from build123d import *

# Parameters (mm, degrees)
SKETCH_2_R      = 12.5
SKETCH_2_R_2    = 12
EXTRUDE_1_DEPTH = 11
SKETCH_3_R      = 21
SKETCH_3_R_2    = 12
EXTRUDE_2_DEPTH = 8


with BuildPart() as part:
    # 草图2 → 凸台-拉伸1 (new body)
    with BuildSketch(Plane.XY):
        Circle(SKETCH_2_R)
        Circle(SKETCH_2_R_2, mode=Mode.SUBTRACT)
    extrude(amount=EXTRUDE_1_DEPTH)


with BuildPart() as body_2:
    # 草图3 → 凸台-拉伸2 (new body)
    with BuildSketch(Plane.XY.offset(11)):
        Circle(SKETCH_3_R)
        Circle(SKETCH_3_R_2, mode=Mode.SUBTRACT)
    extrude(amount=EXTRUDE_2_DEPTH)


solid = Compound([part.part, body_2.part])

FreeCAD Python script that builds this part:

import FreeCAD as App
import Part
import Sketcher
Q = App.Units.Quantity

doc = App.newDocument("Part")
body = doc.addObject("PartDesign::Body", "Body")

sketch1 = body.newObject("Sketcher::SketchObject", "Sketch")
sketch1.AttachmentSupport = (doc.getObject("XY_Plane"), [""])
sketch1.MapMode = "FlatFace"
sketch1.addGeometry([
    Part.Circle(App.Vector(0, 0, 0), App.Vector(0, 0, 1), 12.5),
    Part.Circle(App.Vector(0, 0, 0), App.Vector(0, 0, 1), 12),
], False)
sketch1.addConstraint([
    Sketcher.Constraint("Coincident", 0, 3, -1, 1),
    Sketcher.Constraint("Coincident", 1, 3, -1, 1),
    Sketcher.Constraint("Diameter", 0, Q("25 mm")),
    Sketcher.Constraint("Diameter", 1, Q("24 mm")),
])
pad1 = body.newObject("PartDesign::Pad", "Pad")
pad1.Profile = sketch1
pad1.Length = 11
body2 = doc.addObject("PartDesign::Body", "Body001")

sketch2 = body2.newObject("Sketcher::SketchObject", "Sketch001")
sketch2.AttachmentSupport = (doc.getObject("XY_Plane001"), [""])
sketch2.MapMode = "FlatFace"
sketch2.AttachmentOffset = App.Placement(App.Vector(0, 0, 11), App.Rotation())
sketch2.addGeometry([
    Part.Circle(App.Vector(0, 0, 0), App.Vector(0, 0, 1), 21),
    Part.Circle(App.Vector(0, 0, 0), App.Vector(0, 0, 1), 12),
], False)
sketch2.addConstraint([
    Sketcher.Constraint("Coincident", 0, 3, -1, 1),
    Sketcher.Constraint("Coincident", 1, 3, -1, 1),
    Sketcher.Constraint("Diameter", 0, Q("42 mm")),
    Sketcher.Constraint("Diameter", 1, Q("24 mm")),
])
pad2 = body2.newObject("PartDesign::Pad", "Pad001")
pad2.Profile = sketch2
pad2.Length = 8

doc.recompute()
